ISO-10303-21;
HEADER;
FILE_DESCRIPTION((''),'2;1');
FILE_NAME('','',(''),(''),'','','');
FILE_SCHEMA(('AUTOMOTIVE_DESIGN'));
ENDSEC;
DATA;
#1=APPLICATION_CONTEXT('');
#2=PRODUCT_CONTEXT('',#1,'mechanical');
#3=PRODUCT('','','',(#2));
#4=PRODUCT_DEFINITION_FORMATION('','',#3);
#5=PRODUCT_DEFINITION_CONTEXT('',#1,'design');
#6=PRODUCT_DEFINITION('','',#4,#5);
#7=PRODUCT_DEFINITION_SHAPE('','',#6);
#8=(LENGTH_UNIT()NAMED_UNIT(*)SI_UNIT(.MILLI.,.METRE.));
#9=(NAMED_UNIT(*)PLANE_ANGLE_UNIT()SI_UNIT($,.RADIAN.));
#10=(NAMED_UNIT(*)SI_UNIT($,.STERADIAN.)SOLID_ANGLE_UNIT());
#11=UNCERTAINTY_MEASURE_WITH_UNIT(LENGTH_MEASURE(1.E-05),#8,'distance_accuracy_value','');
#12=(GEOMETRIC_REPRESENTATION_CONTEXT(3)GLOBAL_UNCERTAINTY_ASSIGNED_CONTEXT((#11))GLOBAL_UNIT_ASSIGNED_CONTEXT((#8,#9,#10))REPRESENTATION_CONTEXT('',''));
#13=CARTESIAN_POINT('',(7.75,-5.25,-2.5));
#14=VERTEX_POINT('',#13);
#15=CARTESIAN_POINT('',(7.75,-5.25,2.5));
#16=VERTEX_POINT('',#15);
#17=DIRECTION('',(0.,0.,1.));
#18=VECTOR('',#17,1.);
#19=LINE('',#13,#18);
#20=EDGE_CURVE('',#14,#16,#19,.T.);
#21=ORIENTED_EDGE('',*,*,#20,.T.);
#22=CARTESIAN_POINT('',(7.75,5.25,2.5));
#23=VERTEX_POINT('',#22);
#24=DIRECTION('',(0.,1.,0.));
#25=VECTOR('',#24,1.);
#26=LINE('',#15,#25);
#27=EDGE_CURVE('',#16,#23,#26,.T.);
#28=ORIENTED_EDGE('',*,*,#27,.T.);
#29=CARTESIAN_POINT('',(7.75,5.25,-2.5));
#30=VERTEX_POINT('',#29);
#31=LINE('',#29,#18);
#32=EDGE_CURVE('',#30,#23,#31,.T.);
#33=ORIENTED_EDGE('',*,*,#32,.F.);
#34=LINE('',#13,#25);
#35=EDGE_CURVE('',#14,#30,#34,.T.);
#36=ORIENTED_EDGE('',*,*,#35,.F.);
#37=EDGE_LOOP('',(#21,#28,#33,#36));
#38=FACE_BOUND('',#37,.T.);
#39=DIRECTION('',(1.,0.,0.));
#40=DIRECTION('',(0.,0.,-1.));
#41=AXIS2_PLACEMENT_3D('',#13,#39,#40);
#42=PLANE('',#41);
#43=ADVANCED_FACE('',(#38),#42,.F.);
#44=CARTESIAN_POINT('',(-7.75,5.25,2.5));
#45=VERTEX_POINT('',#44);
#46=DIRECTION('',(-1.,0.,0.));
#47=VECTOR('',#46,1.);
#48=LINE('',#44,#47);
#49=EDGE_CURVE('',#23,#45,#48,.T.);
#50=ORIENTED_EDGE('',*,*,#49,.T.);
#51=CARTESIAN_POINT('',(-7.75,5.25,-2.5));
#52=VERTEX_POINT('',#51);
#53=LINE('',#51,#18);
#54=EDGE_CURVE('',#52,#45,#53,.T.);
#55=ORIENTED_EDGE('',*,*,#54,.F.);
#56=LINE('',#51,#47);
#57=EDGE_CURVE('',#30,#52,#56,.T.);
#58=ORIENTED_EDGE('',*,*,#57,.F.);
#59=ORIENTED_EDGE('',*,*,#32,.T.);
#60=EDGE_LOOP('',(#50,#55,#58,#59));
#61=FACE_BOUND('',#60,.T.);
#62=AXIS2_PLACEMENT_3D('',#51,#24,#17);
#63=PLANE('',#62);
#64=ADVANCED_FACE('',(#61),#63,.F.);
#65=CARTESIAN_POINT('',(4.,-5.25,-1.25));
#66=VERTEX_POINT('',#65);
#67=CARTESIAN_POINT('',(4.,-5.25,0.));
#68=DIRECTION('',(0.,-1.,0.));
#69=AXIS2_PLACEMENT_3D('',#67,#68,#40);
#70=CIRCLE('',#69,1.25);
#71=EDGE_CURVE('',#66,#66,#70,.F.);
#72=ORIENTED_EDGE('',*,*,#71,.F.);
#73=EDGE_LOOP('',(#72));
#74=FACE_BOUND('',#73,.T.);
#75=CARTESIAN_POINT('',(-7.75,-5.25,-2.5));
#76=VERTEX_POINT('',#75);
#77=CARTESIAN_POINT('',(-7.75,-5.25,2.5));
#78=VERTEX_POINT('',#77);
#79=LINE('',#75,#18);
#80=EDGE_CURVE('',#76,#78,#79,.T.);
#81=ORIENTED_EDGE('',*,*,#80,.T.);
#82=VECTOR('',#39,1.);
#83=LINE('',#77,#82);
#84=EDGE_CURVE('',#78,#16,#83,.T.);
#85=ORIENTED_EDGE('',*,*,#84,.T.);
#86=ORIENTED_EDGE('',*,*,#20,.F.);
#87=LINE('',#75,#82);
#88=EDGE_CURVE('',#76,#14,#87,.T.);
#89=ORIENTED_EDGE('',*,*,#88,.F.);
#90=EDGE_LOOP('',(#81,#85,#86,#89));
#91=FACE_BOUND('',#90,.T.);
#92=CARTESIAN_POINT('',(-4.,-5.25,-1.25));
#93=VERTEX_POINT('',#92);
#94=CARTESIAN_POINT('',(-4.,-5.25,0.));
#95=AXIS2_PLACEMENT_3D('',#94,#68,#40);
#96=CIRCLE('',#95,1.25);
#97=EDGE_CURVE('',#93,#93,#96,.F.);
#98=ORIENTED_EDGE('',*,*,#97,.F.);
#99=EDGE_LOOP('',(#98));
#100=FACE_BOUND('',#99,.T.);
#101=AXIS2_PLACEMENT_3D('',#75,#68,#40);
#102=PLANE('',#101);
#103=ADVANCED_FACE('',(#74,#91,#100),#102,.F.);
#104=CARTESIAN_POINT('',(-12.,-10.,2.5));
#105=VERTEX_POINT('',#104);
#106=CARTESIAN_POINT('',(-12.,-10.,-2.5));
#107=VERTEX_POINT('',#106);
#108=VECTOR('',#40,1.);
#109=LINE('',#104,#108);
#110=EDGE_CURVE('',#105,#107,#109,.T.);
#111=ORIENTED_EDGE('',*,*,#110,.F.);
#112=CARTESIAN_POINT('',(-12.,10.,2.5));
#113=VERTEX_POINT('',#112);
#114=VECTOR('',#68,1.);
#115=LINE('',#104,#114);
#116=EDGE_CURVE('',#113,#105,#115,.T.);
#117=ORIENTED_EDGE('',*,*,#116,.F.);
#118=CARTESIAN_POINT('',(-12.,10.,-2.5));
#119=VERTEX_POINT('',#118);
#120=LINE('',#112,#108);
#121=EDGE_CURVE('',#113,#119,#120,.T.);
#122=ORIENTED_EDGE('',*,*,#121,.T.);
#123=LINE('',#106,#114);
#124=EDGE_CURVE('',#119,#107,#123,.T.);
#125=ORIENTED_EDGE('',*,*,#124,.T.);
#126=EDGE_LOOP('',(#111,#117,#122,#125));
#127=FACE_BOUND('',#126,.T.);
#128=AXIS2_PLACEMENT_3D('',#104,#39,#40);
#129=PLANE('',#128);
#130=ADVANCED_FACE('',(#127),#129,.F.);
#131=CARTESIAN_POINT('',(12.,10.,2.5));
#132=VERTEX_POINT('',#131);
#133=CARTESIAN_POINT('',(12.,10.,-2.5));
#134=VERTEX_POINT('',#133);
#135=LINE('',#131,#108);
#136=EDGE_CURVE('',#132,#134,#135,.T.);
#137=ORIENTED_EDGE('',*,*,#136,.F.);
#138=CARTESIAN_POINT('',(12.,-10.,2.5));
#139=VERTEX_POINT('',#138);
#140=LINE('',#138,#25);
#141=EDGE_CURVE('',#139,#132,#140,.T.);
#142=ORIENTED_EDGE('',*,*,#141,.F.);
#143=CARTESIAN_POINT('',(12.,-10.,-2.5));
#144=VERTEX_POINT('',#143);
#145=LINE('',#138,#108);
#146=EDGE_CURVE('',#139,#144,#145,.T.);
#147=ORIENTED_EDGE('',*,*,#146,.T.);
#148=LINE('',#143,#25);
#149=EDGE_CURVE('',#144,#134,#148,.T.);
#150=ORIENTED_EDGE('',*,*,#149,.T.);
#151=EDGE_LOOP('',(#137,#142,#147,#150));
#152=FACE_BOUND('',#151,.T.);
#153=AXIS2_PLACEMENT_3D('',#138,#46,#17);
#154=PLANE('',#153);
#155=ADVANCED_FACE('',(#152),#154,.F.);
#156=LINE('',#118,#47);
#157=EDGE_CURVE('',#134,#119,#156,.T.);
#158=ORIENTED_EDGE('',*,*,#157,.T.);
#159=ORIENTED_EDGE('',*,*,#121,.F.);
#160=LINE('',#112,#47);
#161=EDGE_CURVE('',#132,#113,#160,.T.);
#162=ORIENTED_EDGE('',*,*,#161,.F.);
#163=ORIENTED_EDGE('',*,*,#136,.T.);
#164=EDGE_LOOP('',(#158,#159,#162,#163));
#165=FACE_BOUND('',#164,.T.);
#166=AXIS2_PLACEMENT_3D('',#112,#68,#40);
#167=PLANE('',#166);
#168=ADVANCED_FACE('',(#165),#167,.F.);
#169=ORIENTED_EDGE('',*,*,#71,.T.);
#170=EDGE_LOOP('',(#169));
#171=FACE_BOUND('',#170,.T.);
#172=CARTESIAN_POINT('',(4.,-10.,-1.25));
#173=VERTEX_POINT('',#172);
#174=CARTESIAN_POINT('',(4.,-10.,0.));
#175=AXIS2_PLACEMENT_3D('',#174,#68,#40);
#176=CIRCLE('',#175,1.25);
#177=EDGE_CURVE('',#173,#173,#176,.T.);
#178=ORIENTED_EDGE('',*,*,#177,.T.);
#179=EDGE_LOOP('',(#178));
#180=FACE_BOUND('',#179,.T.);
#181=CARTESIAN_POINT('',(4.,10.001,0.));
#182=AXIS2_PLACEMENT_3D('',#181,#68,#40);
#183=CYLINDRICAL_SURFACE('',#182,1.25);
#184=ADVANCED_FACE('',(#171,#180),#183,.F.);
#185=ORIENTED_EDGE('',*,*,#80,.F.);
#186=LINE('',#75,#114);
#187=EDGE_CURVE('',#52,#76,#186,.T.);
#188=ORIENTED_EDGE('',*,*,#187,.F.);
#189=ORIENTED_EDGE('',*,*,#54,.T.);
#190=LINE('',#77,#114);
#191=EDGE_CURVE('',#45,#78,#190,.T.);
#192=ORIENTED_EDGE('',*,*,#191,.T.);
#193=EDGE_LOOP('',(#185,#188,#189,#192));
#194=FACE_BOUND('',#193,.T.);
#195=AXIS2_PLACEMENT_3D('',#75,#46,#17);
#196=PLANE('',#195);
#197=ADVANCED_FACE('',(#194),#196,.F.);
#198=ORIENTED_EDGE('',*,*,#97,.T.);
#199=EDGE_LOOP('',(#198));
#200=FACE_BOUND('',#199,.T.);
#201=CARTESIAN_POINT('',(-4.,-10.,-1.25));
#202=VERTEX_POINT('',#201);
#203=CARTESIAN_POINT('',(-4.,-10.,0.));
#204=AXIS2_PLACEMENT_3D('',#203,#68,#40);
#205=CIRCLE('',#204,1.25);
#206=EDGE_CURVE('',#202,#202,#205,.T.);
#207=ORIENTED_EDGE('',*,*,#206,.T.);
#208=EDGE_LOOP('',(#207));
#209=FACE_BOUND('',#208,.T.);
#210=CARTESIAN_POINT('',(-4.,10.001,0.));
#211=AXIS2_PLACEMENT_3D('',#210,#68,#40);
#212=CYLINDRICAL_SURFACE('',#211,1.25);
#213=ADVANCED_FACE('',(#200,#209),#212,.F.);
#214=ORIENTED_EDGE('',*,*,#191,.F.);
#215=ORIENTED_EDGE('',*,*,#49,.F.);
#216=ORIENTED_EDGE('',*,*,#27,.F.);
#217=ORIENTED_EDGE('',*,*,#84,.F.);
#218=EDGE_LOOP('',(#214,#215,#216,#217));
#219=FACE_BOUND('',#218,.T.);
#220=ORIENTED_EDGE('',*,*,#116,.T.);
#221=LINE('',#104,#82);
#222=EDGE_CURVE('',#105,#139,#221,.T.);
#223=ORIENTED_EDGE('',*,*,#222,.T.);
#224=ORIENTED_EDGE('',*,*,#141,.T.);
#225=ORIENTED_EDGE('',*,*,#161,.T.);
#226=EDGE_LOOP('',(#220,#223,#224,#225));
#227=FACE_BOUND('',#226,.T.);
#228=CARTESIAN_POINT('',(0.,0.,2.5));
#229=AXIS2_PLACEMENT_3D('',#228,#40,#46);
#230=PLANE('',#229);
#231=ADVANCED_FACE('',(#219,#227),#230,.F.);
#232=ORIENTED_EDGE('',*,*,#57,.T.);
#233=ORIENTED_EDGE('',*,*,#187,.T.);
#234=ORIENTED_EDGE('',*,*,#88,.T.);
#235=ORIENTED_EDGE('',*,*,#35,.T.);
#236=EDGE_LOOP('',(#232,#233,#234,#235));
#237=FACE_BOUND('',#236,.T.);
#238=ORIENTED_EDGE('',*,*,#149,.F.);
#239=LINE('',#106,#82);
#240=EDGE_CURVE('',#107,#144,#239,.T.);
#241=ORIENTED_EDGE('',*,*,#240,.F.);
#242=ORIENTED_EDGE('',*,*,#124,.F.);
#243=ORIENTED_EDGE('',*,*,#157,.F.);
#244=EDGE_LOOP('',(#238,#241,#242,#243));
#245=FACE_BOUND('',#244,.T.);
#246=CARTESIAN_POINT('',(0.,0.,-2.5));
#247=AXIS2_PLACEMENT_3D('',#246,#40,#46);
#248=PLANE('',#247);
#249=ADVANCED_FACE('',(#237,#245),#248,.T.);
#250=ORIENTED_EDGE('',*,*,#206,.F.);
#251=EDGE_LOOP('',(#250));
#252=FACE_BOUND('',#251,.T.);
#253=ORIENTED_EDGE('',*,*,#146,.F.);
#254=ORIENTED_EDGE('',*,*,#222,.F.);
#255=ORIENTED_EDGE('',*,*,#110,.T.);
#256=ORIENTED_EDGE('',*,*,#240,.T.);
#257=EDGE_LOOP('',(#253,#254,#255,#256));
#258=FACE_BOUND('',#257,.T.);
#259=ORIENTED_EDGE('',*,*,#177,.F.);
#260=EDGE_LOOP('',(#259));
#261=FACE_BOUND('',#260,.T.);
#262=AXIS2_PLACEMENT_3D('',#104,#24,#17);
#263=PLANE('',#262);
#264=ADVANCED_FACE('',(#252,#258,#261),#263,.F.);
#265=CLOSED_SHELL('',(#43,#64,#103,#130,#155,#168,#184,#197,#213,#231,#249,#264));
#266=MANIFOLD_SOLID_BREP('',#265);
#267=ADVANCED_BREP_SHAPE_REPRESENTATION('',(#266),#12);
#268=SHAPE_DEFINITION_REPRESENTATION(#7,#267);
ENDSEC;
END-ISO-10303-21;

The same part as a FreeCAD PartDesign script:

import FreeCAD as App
import Part
import Sketcher
Q = App.Units.Quantity

doc = App.newDocument("Part")
body = doc.addObject("PartDesign::Body", "Body")

# Sketch on XY plane
sketch1 = doc.addObject("Sketcher::SketchObject", "Sketch")
body.addObject(sketch1)
sketch1.AttachmentSupport = (doc.XY_Plane, [""])
sketch1.MapMode = "FlatFace"
sketch1.addGeometry([
    Part.LineSegment(App.Vector(-12, 10, 0), App.Vector(-12, -10, 0)),
    Part.LineSegment(App.Vector(-12, -10, 0), App.Vector(12, -10, 0)),
    Part.LineSegment(App.Vector(12, -10, 0), App.Vector(12, 10, 0)),
    Part.LineSegment(App.Vector(12, 10, 0), App.Vector(-12, 10, 0)),
], False)
sketch1.addConstraint([
    Sketcher.Constraint("Coincident", 0, 2, 1, 1),
    Sketcher.Constraint("Coincident", 1, 2, 2, 1),
    Sketcher.Constraint("Coincident", 2, 2, 3, 1),
    Sketcher.Constraint("Coincident", 3, 2, 0, 1),
    Sketcher.Constraint("Vertical", 0),
    Sketcher.Constraint("Horizontal", 1),
    Sketcher.Constraint("Vertical", 2),
    Sketcher.Constraint("Horizontal", 3),
    Sketcher.Constraint("Symmetric", 0, 2, 2, 2, -1, 1),
    Sketcher.Constraint("DistanceX", 1, 1, 1, 2, Q("24 mm")),
    Sketcher.Constraint("DistanceY", 0, 2, 0, 1, Q("20 mm")),
])
pad1 = doc.addObject("PartDesign::Pad", "Pad")
body.addObject(pad1)
pad1.Profile = sketch1
pad1.Length = 5
pad1.Midplane = True

# Sketch on XY plane
sketch2 = doc.addObject("Sketcher::SketchObject", "Sketch001")
body.addObject(sketch2)
sketch2.AttachmentSupport = (doc.XY_Plane, [""])
sketch2.MapMode = "FlatFace"
sketch2.AttachmentOffset = App.Placement(App.Vector(0, 0, 2.5), App.Rotation())
sketch2.addGeometry([
    Part.LineSegment(App.Vector(-8, 5, 0), App.Vector(-8, -5, 0)),
    Part.LineSegment(App.Vector(-8, -5, 0), App.Vector(8, -5, 0)),
    Part.LineSegment(App.Vector(8, -5, 0), App.Vector(8, 5, 0)),
    Part.LineSegment(App.Vector(8, 5, 0), App.Vector(-8, 5, 0)),
], False)
sketch2.addConstraint([
    Sketcher.Constraint("Coincident", 0, 2, 1, 1),
    Sketcher.Constraint("Coincident", 1, 2, 2, 1),
    Sketcher.Constraint("Coincident", 2, 2, 3, 1),
    Sketcher.Constraint("Coincident", 3, 2, 0, 1),
    Sketcher.Constraint("Vertical", 0),
    Sketcher.Constraint("Horizontal", 1),
    Sketcher.Constraint("Vertical", 2),
    Sketcher.Constraint("Horizontal", 3),
    Sketcher.Constraint("Symmetric", 0, 2, 2, 2, -1, 1),
    Sketcher.Constraint("DistanceX", 1, 1, 1, 2, Q("15.5 mm")),
    Sketcher.Constraint("DistanceY", 0, 2, 0, 1, Q("10.5 mm")),
])
pocket1 = doc.addObject("PartDesign::Pocket", "Pocket")
body.addObject(pocket1)
pocket1.Profile = sketch2
pocket1.Type = "ThroughAll"

# Sketch on XZ plane
sketch3 = doc.addObject("Sketcher::SketchObject", "Sketch002")
body.addObject(sketch3)
sketch3.AttachmentSupport = (doc.XZ_Plane, [""])
sketch3.MapMode = "FlatFace"
sketch3.AttachmentOffset = App.Placement(App.Vector(0, 0, 10), App.Rotation())
sketch3.addGeometry(Part.Circle(App.Vector(-4, 0, 0), App.Vector(0, 0, 1), 1.2), False)
sketch3.addConstraint([
    Sketcher.Constraint("PointOnObject", 0, 3, -1),
    Sketcher.Constraint("Diameter", 0, Q("2.5 mm")),
    Sketcher.Constraint("DistanceX", 0, 3, -1, 1, Q("4 mm")),
])
pocket2 = doc.addObject("PartDesign::Pocket", "Pocket001")
body.addObject(pocket2)
pocket2.Profile = sketch3
pocket2.Type = "UpToFirst"

# Sketch on XZ plane
sketch4 = doc.addObject("Sketcher::SketchObject", "Sketch003")
body.addObject(sketch4)
sketch4.AttachmentSupport = (doc.XZ_Plane, [""])
sketch4.MapMode = "FlatFace"
sketch4.AttachmentOffset = App.Placement(App.Vector(0, 0, 10), App.Rotation())
sketch4.addGeometry(Part.Circle(App.Vector(4, 0, 0), App.Vector(0, 0, 1), 1.2), False)
sketch4.addConstraint([
    Sketcher.Constraint("PointOnObject", 0, 3, -1),
    Sketcher.Constraint("Diameter", 0, Q("2.5 mm")),
    Sketcher.Constraint("DistanceX", -1, 1, 0, 3, Q("4 mm")),
])
pocket3 = doc.addObject("PartDesign::Pocket", "Pocket002")
body.addObject(pocket3)
pocket3.Profile = sketch4
pocket3.Type = "UpToFirst"

doc.recompute()
